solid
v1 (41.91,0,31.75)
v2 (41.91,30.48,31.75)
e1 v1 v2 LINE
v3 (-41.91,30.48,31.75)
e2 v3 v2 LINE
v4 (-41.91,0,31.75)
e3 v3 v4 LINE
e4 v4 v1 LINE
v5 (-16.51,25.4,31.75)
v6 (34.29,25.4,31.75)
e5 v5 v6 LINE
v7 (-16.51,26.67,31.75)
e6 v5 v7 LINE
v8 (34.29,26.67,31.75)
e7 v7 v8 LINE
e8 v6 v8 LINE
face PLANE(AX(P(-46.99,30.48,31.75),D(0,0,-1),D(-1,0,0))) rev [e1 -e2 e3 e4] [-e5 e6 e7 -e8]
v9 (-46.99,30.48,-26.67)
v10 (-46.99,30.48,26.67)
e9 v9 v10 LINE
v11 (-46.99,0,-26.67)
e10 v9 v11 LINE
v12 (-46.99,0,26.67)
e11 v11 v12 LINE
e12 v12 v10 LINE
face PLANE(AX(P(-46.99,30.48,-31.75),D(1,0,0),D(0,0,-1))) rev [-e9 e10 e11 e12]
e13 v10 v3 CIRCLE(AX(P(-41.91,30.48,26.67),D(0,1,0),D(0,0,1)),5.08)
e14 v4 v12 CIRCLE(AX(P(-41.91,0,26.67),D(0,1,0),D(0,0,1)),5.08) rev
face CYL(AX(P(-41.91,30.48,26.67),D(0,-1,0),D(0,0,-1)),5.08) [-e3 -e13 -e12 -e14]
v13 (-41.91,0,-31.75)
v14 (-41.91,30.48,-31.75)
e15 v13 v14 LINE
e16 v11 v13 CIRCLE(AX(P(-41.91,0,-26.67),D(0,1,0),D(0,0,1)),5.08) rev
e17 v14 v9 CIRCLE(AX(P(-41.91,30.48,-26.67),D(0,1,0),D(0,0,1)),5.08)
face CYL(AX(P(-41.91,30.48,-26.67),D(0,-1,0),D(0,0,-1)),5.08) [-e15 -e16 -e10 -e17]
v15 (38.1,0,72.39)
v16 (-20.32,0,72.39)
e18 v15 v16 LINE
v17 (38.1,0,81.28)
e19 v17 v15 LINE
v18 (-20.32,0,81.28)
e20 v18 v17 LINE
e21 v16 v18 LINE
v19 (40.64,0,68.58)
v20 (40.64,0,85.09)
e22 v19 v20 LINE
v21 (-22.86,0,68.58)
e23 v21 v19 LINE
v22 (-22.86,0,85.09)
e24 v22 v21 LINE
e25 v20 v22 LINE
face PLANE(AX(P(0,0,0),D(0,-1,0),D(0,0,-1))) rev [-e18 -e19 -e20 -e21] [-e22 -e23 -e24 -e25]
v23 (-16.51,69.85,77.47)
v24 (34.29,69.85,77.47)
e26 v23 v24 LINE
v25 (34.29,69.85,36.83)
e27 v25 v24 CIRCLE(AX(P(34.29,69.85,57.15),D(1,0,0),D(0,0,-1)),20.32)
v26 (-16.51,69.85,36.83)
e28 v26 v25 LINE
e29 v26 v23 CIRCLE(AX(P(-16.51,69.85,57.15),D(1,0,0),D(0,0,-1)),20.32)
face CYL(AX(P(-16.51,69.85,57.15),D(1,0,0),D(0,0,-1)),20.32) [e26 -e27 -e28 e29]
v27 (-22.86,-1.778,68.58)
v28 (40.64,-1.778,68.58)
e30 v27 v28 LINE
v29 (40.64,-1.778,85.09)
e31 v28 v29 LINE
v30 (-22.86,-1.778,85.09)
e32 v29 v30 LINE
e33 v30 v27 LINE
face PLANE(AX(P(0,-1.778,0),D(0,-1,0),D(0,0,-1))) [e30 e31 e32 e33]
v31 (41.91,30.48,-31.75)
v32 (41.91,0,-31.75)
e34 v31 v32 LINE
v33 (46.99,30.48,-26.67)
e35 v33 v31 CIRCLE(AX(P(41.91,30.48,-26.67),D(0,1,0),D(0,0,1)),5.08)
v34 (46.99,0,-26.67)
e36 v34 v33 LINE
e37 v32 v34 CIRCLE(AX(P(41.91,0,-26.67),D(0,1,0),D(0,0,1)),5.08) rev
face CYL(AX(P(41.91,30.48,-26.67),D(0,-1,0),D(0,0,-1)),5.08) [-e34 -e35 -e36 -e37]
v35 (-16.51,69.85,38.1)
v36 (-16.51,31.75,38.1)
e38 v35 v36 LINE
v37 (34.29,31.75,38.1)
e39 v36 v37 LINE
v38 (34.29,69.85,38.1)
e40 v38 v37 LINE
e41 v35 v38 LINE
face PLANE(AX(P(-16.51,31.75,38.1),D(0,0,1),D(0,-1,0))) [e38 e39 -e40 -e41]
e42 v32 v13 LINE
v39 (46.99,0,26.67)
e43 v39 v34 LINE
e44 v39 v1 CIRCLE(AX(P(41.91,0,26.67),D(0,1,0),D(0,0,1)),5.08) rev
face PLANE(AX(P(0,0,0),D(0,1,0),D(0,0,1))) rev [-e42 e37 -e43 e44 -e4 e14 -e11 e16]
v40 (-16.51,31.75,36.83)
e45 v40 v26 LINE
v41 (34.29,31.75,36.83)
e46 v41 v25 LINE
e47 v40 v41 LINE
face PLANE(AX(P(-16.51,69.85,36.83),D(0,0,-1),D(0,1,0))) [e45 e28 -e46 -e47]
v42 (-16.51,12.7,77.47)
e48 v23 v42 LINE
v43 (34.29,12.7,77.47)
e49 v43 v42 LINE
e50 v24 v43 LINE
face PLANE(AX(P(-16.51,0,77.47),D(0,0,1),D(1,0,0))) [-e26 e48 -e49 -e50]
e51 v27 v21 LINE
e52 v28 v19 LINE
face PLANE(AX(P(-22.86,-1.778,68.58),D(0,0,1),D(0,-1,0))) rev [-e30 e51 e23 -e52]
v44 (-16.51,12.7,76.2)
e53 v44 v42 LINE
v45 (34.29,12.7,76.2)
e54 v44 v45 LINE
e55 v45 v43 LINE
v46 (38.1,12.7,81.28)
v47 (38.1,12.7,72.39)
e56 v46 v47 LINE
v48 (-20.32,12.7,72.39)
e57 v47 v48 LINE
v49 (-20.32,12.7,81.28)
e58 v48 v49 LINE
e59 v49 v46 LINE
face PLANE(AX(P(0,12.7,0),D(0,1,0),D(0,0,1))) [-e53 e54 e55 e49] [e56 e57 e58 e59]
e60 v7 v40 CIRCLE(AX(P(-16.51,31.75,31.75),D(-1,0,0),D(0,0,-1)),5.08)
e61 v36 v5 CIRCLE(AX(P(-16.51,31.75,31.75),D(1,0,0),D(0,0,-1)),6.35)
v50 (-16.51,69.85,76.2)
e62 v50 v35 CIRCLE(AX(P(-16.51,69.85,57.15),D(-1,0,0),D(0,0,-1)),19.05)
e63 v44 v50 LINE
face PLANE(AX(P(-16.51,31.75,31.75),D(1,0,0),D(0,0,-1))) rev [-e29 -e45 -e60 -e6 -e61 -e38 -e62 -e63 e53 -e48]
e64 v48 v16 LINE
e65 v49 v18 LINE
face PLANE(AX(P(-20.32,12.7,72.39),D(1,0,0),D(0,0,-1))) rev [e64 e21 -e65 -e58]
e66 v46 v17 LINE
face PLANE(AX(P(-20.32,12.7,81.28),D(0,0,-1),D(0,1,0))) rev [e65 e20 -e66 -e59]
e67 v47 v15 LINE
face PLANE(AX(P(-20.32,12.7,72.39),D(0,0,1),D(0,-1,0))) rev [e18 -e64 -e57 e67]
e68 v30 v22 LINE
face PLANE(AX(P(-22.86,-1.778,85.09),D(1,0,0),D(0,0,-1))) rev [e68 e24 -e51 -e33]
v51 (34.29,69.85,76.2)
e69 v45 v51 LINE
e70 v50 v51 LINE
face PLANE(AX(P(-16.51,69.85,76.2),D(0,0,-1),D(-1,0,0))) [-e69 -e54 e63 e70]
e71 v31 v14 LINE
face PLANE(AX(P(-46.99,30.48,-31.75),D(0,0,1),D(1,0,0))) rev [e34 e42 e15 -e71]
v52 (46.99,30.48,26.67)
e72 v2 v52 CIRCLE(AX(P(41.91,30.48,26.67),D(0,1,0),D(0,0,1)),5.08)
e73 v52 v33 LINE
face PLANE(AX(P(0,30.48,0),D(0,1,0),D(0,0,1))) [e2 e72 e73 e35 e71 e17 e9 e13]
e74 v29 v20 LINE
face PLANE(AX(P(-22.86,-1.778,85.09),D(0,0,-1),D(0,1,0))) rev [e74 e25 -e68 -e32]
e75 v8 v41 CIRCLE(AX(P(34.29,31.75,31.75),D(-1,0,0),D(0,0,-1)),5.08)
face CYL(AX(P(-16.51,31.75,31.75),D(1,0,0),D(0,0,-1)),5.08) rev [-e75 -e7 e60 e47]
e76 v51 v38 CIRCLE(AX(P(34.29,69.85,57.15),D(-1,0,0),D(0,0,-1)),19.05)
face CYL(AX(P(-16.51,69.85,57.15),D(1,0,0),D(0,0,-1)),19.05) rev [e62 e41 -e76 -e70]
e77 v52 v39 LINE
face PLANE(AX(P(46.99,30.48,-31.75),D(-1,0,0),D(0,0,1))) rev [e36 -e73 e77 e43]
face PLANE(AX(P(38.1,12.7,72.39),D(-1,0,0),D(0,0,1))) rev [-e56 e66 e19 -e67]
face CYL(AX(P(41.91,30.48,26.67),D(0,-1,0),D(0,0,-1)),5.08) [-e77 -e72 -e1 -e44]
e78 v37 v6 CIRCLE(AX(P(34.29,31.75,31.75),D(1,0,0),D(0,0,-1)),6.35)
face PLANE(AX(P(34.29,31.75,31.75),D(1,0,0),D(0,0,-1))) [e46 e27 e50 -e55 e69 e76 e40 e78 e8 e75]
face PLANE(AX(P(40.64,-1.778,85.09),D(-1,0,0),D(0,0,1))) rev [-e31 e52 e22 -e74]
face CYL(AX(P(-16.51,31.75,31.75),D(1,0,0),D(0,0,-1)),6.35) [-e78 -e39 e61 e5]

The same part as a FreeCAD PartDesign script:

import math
import FreeCAD as App
import Part
import Sketcher

V = App.Vector
Q = App.Units.Quantity


def edges_at(feature, points):
    """Names of the edges that pass closest to the given points."""
    edges = feature.Shape.Edges
    near = lambda p: min(range(len(edges)), key=lambda i: edges[i].distToShape(Part.Vertex(*p))[0])
    return sorted({f"Edge{near(p) + 1}" for p in points})

doc = App.newDocument("Part")
body = doc.addObject("PartDesign::Body", "Body")

sketch1 = body.newObject("Sketcher::SketchObject", "Sketch")
sketch1.AttachmentSupport = (doc.getObject("XZ_Plane"), [""])
sketch1.MapMode = "FlatFace"
sketch1.addGeometry([
    Part.LineSegment(V(-47, -32, 0), V(-47, 32, 0)),
    Part.LineSegment(V(-47, 32, 0), V(47, 32, 0)),
    Part.LineSegment(V(47, 32, 0), V(47, -32, 0)),
    Part.LineSegment(V(47, -32, 0), V(-47, -32, 0)),
], False)
sketch1.addConstraint([
    Sketcher.Constraint("Coincident", 0, 2, 1, 1),
    Sketcher.Constraint("Coincident", 1, 2, 2, 1),
    Sketcher.Constraint("Coincident", 2, 2, 3, 1),
    Sketcher.Constraint("Coincident", 3, 2, 0, 1),
    Sketcher.Constraint("Vertical", 0),
    Sketcher.Constraint("Horizontal", 1),
    Sketcher.Constraint("Vertical", 2),
    Sketcher.Constraint("Horizontal", 3),
    Sketcher.Constraint("Symmetric", 0, 2, 2, 2, -1, 1),
    Sketcher.Constraint("DistanceX", 1, 1, 1, 2, Q("3.7 in")),
    Sketcher.Constraint("DistanceY", 0, 1, 0, 2, Q("2.5 in")),
])
pad1 = body.newObject("PartDesign::Pad", "Pad")
pad1.Profile = sketch1
pad1.Length = Q("1.2 in")
pad1.Reversed = True
doc.recompute()

fillet = body.newObject("PartDesign::Fillet", "Fillet")
fillet.Base = (pad1, edges_at(pad1, [
    (46.99, 15.24, 31.75),
    (-46.99, 15.24, 31.75),
    (-46.99, 15.24, -31.75),
    (46.99, 15.24, -31.75),
]))
fillet.Radius = Q("0.2 in")

sketch2 = body.newObject("Sketcher::SketchObject", "Sketch001")
sketch2.AttachmentSupport = (doc.getObject("YZ_Plane"), [""])
sketch2.MapMode = "FlatFace"
sketch2.AttachmentOffset = App.Placement(V(0, 0, 1.35 * 25.4), App.Rotation())
sketch2.addGeometry([
    Part.LineSegment(V(69.8, 38.1, 0), V(31.8, 38.1, 0)),
    Part.ArcOfCircle(Part.Circle(V(31.7, 31.8, 0), V(0, 0, 1), 6.3), math.radians(90), math.radians(180)),
    Part.LineSegment(V(25.4, 31.8, 0), V(26.7, 31.8, 0)),
    Part.ArcOfCircle(Part.Circle(V(31.8, 31.7, 0), V(0, 0, 1), 5.1), math.radians(90), math.radians(180)),
    Part.LineSegment(V(31.8, 36.8, 0), V(69.8, 36.8, 0)),
    Part.ArcOfCircle(Part.Circle(V(69.8, 57.1, 0), V(0, 0, 1), 20.3), math.radians(-90), math.radians(90)),
    Part.LineSegment(V(69.8, 77.5, 0), V(0, 77.5, 0)),
    Part.LineSegment(V(0, 77.5, 0), V(0, 76.2, 0)),
    Part.LineSegment(V(0, 76.2, 0), V(69.8, 76.2, 0)),
    Part.ArcOfCircle(Part.Circle(V(69.8, 57.1, 0), V(0, 0, 1), 19.1), math.radians(-90), math.radians(90)),
], False)
sketch2.addConstraint([
    Sketcher.Constraint("Tangent", 0, 2, 1, 1),
    Sketcher.Constraint("Coincident", 1, 2, 2, 1),
    Sketcher.Constraint("Coincident", 2, 2, 3, 2),
    Sketcher.Constraint("Tangent", 3, 1, 4, 1),
    Sketcher.Constraint("Tangent", 4, 2, 5, 1),
    Sketcher.Constraint("Tangent", 5, 2, 6, 1),
    Sketcher.Constraint("Coincident", 6, 2, 7, 1),
    Sketcher.Constraint("Coincident", 7, 2, 8, 1),
    Sketcher.Constraint("Tangent", 8, 2, 9, 2),
    Sketcher.Constraint("Tangent", 9, 1, 0, 1),
    Sketcher.Constraint("Horizontal", 0),
    Sketcher.Constraint("Horizontal", 2),
    Sketcher.Constraint("Horizontal", 4),
    Sketcher.Constraint("Horizontal", 6),
    Sketcher.Constraint("Vertical", 7),
    Sketcher.Constraint("Horizontal", 8),
    Sketcher.Constraint("Coincident", 3, 3, 1, 3),
    Sketcher.Constraint("Coincident", 9, 3, 5, 3),
    Sketcher.Constraint("PointOnObject", 6, 2, -2),
    Sketcher.Constraint("Horizontal", 3, 3, 1, 2),
    Sketcher.Constraint("Radius", 3, Q("0.2 in")),
    Sketcher.Constraint("Radius", 5, Q("0.8 in")),
    Sketcher.Constraint("Radius", 1, Q("0.25 in")),
    Sketcher.Constraint("DistanceX", 0, 2, 0, 1, Q("1.5 in")),
    Sketcher.Constraint("DistanceX", -1, 1, 1, 2, Q("1 in")),
    Sketcher.Constraint("DistanceY", -1, 1, 7, 2, Q("3 in")),
])
pad2 = body.newObject("PartDesign::Pad", "Pad001")
pad2.Profile = sketch2
pad2.Length = Q("2 in")
pad2.Reversed = True

sketch3 = body.newObject("Sketcher::SketchObject", "Sketch002")
sketch3.AttachmentSupport = (doc.getObject("XZ_Plane"), [""])
sketch3.MapMode = "FlatFace"
sketch3.addGeometry([
    Part.LineSegment(V(-23, 85, 0), V(-23, 69, 0)),
    Part.LineSegment(V(-23, 69, 0), V(41, 69, 0)),
    Part.LineSegment(V(41, 69, 0), V(41, 85, 0)),
    Part.LineSegment(V(41, 85, 0), V(-23, 85, 0)),
], False)
sketch3.addConstraint([
    Sketcher.Constraint("Coincident", 0, 2, 1, 1),
    Sketcher.Constraint("Coincident", 1, 2, 2, 1),
    Sketcher.Constraint("Coincident", 2, 2, 3, 1),
    Sketcher.Constraint("Coincident", 3, 2, 0, 1),
    Sketcher.Constraint("Vertical", 0),
    Sketcher.Constraint("Horizontal", 1),
    Sketcher.Constraint("Vertical", 2),
    Sketcher.Constraint("Horizontal", 3),
    Sketcher.Constraint("DistanceX", 1, 1, 1, 2, Q("2.5 in")),
    Sketcher.Constraint("DistanceY", 0, 2, 0, 1, Q("0.65 in")),
    Sketcher.Constraint("DistanceX", 0, 2, -1, 1, Q("0.9 in")),
    Sketcher.Constraint("DistanceY", -1, 1, 0, 2, Q("2.7 in")),
])
pad3 = body.newObject("PartDesign::Pad", "Pad002")
pad3.Profile = sketch3
pad3.Length = Q("0.07 in")

sketch4 = body.newObject("Sketcher::SketchObject", "Sketch003")
sketch4.AttachmentSupport = (doc.getObject("XZ_Plane"), [""])
sketch4.MapMode = "FlatFace"
sketch4.addGeometry([
    Part.LineSegment(V(-20, 72, 0), V(-20, 81, 0)),
    Part.LineSegment(V(-20, 81, 0), V(38, 81, 0)),
    Part.LineSegment(V(38, 81, 0), V(38, 72, 0)),
    Part.LineSegment(V(38, 72, 0), V(-20, 72, 0)),
], False)
sketch4.addConstraint([
    Sketcher.Constraint("Coincident", 0, 2, 1, 1),
    Sketcher.Constraint("Coincident", 1, 2, 2, 1),
    Sketcher.Constraint("Coincident", 2, 2, 3, 1),
    Sketcher.Constraint("Coincident", 3, 2, 0, 1),
    Sketcher.Constraint("Vertical", 0),
    Sketcher.Constraint("Horizontal", 1),
    Sketcher.Constraint("Vertical", 2),
    Sketcher.Constraint("Horizontal", 3),
    Sketcher.Constraint("DistanceX", 1, 1, 1, 2, Q("2.3 in")),
    Sketcher.Constraint("DistanceY", 0, 1, 0, 2, Q("0.35 in")),
    Sketcher.Constraint("DistanceX", 0, 2, -1, 1, Q("0.8 in")),
    Sketcher.Constraint("DistanceY", -1, 1, 0, 2, Q("3.2 in")),
])
pad4 = body.newObject("PartDesign::Pad", "Pad003")
pad4.Profile = sketch4
pad4.Length = Q("0.5 in")
pad4.Reversed = True

doc.recompute()
